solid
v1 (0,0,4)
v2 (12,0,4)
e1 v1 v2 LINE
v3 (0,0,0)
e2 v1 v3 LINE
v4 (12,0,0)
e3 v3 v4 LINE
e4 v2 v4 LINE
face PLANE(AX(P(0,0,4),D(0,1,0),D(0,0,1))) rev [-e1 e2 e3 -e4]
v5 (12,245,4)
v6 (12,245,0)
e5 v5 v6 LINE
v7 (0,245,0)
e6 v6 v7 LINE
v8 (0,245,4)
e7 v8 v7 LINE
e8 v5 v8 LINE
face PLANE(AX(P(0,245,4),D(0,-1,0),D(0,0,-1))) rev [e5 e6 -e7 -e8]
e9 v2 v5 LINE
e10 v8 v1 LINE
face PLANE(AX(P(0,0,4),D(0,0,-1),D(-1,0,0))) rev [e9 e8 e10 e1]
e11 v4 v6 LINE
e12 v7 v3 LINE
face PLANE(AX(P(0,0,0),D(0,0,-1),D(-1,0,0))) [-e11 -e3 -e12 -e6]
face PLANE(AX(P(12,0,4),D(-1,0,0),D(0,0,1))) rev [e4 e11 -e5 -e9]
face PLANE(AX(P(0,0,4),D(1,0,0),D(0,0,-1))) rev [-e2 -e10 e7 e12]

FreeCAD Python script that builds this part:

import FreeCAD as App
import Part
import Sketcher
from FreeCAD import Vector
Q = App.Units.Quantity


def add_polygon(sketch, points):
    """Adds a closed chain of lines whose ends are joined by coincident constraints."""
    first, n = sketch.GeometryCount, len(points)
    for a, b in zip(points, points[1:] + points[:1]):
        sketch.addGeometry(Part.LineSegment(App.Vector(*a, 0), App.Vector(*b, 0)), False)
    for i in range(n):
        sketch.addConstraint(Sketcher.Constraint("Coincident", first + i, 2, first + (i + 1) % n, 1))

doc = App.newDocument("Part")
body = doc.addObject("PartDesign::Body", "Body")

# Sketch on XY plane
sketch1 = body.newObject("Sketcher::SketchObject", "Sketch")
sketch1.AttachmentSupport = (doc.getObject("XY_Plane"), [""])
sketch1.MapMode = "FlatFace"
add_polygon(sketch1, [(0, 245), (0, 0), (12, 0), (12, 245)])  # lines 0-3
sketch1.addConstraint([
    Sketcher.Constraint("Vertical", 0),
    Sketcher.Constraint("Horizontal", 1),
    Sketcher.Constraint("Vertical", 2),
    Sketcher.Constraint("Horizontal", 3),
    Sketcher.Constraint("Coincident", 0, 2, -1, 1),
    Sketcher.Constraint("DistanceX", 1, 1, 1, 2, Q("12 mm")),
    Sketcher.Constraint("DistanceY", 0, 2, 0, 1, Q("245 mm")),
])
pad1 = body.newObject("PartDesign::Pad", "Pad")
pad1.Profile = sketch1
pad1.Length = 4

doc.recompute()
